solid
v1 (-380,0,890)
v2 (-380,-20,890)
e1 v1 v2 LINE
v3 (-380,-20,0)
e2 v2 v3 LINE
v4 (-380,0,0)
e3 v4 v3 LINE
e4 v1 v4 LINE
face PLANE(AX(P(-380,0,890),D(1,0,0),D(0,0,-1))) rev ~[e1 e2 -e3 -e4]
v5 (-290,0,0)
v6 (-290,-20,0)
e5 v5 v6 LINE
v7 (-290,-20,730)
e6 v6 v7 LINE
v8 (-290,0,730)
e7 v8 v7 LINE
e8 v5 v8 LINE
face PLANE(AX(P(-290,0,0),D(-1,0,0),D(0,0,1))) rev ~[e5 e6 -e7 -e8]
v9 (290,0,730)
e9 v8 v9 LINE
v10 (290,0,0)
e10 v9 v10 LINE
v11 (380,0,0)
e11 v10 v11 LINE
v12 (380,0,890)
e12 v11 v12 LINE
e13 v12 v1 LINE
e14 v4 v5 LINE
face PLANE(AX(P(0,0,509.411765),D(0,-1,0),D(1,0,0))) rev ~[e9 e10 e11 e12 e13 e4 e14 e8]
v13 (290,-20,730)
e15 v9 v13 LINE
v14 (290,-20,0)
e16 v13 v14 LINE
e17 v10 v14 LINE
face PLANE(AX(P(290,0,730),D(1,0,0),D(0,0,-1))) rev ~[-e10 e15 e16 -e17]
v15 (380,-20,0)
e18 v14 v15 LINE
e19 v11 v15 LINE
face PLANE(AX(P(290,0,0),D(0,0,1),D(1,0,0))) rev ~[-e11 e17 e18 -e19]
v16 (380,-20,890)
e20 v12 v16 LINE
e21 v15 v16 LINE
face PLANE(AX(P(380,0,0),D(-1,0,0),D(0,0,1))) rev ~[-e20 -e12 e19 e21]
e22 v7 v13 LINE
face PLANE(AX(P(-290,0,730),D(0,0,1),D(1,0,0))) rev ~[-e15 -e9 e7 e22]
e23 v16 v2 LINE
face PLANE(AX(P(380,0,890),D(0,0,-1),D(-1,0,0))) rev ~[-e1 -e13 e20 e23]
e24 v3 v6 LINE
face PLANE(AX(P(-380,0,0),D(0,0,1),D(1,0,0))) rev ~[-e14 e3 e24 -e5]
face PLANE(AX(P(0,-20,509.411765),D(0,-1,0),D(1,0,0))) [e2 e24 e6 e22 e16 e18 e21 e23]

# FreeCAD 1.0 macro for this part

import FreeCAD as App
import Part
import Sketcher
from FreeCAD import Vector


def add_polygon(sketch, points):
    """Adds a closed chain of lines whose ends are joined by coincident constraints."""
    first, n = sketch.GeometryCount, len(points)
    for a, b in zip(points, points[1:] + points[:1]):
        sketch.addGeometry(Part.LineSegment(App.Vector(*a, 0), App.Vector(*b, 0)), False)
    for i in range(n):
        sketch.addConstraint(Sketcher.Constraint("Coincident", first + i, 2, first + (i + 1) % n, 1))

doc = App.newDocument("Part")
body = doc.addObject("PartDesign::Body", "Body")

# Sketch on XZ plane
sketch1 = body.newObject("Sketcher::SketchObject", "Sketch")
sketch1.AttachmentSupport = (doc.getObject("XZ_Plane"), [""])
sketch1.MapMode = "FlatFace"
add_polygon(sketch1, [(-380, 0), (-290, 0), (-290, 730), (290, 730), (290, 0), (380, 0), (380, 890), (-380, 890)])  # lines 0-7
sketch1.addConstraint([
    Sketcher.Constraint("Horizontal", 0),
    Sketcher.Constraint("Vertical", 1),
    Sketcher.Constraint("Horizontal", 2),
    Sketcher.Constraint("Vertical", 3),
    Sketcher.Constraint("Horizontal", 4),
    Sketcher.Constraint("Vertical", 5),
    Sketcher.Constraint("Horizontal", 6),
    Sketcher.Constraint("Vertical", 7),
    Sketcher.Constraint("Symmetric", 0, 2, 3, 2, -1, 1),
    Sketcher.Constraint("Symmetric", 4, 2, 7, 2, -2),
    Sketcher.Constraint("DistanceX", 0, 1, 0, 2, 90.0),
    Sketcher.Constraint("DistanceX", 2, 1, 2, 2, 580.0),
    Sketcher.Constraint("DistanceY", 1, 1, 1, 2, 730.0),
    Sketcher.Constraint("DistanceY", 5, 1, 5, 2, 890.0),
])
pad1 = body.newObject("PartDesign::Pad", "Pad")
pad1.Profile = sketch1
pad1.Length = 20

doc.recompute()
